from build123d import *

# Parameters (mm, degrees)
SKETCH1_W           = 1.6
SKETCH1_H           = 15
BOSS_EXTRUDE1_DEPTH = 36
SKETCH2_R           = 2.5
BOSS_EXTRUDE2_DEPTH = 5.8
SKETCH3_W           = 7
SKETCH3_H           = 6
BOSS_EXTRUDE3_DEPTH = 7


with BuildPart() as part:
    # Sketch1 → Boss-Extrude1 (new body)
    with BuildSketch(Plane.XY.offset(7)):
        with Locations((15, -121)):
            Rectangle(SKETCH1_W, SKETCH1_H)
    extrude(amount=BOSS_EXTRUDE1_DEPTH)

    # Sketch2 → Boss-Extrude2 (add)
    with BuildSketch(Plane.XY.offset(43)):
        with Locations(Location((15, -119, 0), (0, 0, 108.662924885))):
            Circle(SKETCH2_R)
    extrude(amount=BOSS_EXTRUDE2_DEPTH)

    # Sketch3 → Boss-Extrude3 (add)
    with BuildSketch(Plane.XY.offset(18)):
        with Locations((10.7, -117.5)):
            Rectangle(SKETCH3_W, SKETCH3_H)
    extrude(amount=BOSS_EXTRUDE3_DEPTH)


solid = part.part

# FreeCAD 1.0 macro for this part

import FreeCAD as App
import Part
import Sketcher
from FreeCAD import Vector


def add_polygon(sketch, points):
    """Adds a closed chain of lines whose ends are joined by coincident constraints."""
    first, n = sketch.GeometryCount, len(points)
    for a, b in zip(points, points[1:] + points[:1]):
        sketch.addGeometry(Part.LineSegment(App.Vector(*a, 0), App.Vector(*b, 0)), False)
    for i in range(n):
        sketch.addConstraint(Sketcher.Constraint("Coincident", first + i, 2, first + (i + 1) % n, 1))

doc = App.newDocument("Part")
body = doc.addObject("PartDesign::Body", "Body")

# Sketch on XY plane
sketch1 = body.newObject("Sketcher::SketchObject", "Sketch")
sketch1.AttachmentSupport = (doc.getObject("XY_Plane"), [""])
sketch1.MapMode = "FlatFace"
sketch1.AttachmentOffset = App.Placement(Vector(0, 0, 7), App.Rotation())
add_polygon(sketch1, [(14.2, -113.5), (14.2, -128.5), (15.8, -128.5), (15.8, -113.5)])  # lines 0-3
sketch1.addConstraint([
    Sketcher.Constraint("Vertical", 0),
    Sketcher.Constraint("Horizontal", 1),
    Sketcher.Constraint("Vertical", 2),
    Sketcher.Constraint("Horizontal", 3),
    Sketcher.Constraint("DistanceY", 0, 2, 0, 1, 15.0),
    Sketcher.Constraint("DistanceX", 1, 1, 1, 2, 1.6),
    Sketcher.Constraint("DistanceX", -1, 1, 0, 2, 14.2),
    Sketcher.Constraint("DistanceY", 0, 2, -1, 1, 128.5),
])
pad1 = body.newObject("PartDesign::Pad", "Pad")
pad1.Profile = sketch1
pad1.Length = 36

# Sketch on XY plane
sketch2 = body.newObject("Sketcher::SketchObject", "Sketch001")
sketch2.AttachmentSupport = (doc.getObject("XY_Plane"), [""])
sketch2.MapMode = "FlatFace"
sketch2.AttachmentOffset = App.Placement(Vector(0, 0, 43), App.Rotation())
sketch2.addGeometry(Part.Circle(Vector(15, -119, 0), Vector(0, 0, 1), 2.5), False)
sketch2.addConstraint([
    Sketcher.Constraint("Diameter", 0, 5.0),
    Sketcher.Constraint("DistanceX", -1, 1, 0, 3, 15.0),
    Sketcher.Constraint("DistanceY", 0, 3, -1, 1, 119.0),
])
pad2 = body.newObject("PartDesign::Pad", "Pad001")
pad2.Profile = sketch2
pad2.Length = 5.8

# Sketch on XY plane
sketch3 = body.newObject("Sketcher::SketchObject", "Sketch002")
sketch3.AttachmentSupport = (doc.getObject("XY_Plane"), [""])
sketch3.MapMode = "FlatFace"
sketch3.AttachmentOffset = App.Placement(Vector(0, 0, 18), App.Rotation())
add_polygon(sketch3, [(7, -114), (7, -120), (14, -120), (14, -114)])  # lines 0-3
sketch3.addConstraint([
    Sketcher.Constraint("Vertical", 0),
    Sketcher.Constraint("Horizontal", 1),
    Sketcher.Constraint("Vertical", 2),
    Sketcher.Constraint("Horizontal", 3),
    Sketcher.Constraint("DistanceX", 1, 1, 1, 2, 7.0),
    Sketcher.Constraint("DistanceY", 0, 2, 0, 1, 6.0),
    Sketcher.Constraint("DistanceX", -1, 1, 0, 2, 7.2),
    Sketcher.Constraint("DistanceY", 0, 2, -1, 1, 120.5),
])
pad3 = body.newObject("PartDesign::Pad", "Pad002")
pad3.Profile = sketch3
pad3.Length = 7

doc.recompute()
